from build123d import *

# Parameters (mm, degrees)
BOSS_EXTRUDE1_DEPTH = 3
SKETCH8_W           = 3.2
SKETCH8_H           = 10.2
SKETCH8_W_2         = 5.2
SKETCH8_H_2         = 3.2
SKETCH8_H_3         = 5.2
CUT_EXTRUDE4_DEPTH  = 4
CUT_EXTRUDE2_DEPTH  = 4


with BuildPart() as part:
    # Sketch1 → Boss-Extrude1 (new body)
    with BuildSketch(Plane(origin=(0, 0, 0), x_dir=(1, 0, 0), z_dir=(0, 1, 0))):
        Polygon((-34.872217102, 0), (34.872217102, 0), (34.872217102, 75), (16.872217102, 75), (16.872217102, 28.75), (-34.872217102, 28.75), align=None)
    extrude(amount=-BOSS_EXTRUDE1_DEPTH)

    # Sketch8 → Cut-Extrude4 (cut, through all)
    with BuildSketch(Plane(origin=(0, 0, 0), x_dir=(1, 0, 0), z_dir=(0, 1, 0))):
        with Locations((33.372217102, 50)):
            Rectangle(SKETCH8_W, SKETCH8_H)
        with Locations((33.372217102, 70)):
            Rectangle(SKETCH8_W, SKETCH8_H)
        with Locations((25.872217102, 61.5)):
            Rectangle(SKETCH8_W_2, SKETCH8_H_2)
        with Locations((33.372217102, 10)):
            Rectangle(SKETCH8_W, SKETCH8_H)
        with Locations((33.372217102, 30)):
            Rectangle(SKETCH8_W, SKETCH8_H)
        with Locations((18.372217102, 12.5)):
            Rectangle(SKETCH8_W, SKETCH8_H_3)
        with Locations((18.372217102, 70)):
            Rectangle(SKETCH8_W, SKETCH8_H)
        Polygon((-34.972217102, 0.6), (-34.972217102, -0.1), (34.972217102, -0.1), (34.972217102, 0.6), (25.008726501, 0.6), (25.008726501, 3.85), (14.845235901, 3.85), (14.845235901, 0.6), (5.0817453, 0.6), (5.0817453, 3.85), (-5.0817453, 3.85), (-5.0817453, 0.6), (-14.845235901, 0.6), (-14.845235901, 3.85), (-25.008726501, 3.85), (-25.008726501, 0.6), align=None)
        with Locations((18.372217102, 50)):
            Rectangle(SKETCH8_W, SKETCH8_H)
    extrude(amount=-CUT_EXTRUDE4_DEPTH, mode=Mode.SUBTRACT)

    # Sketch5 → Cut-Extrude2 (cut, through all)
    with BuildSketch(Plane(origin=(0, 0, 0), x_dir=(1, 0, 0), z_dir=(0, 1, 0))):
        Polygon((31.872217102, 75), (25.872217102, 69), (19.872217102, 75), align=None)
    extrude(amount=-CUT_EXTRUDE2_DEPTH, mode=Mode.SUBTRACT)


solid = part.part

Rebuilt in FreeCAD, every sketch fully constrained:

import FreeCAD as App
import Part
import Sketcher
from FreeCAD import Vector

doc = App.newDocument("Part")
body = doc.addObject("PartDesign::Body", "Body")

sketch1 = doc.addObject("Sketcher::SketchObject", "Sketch")
body.addObject(sketch1)
sketch1.AttachmentSupport = (doc.XZ_Plane, [""])
sketch1.MapMode = "FlatFace"
sketch1.addGeometry(Part.LineSegment(Vector(-35, 0, 0), Vector(35, 0, 0)), False)
sketch1.addGeometry(Part.LineSegment(Vector(35, 0, 0), Vector(35, -75, 0)), False)
sketch1.addGeometry(Part.LineSegment(Vector(35, -75, 0), Vector(17, -75, 0)), False)
sketch1.addGeometry(Part.LineSegment(Vector(17, -75, 0), Vector(17, -29, 0)), False)
sketch1.addGeometry(Part.LineSegment(Vector(17, -29, 0), Vector(-35, -29, 0)), False)
sketch1.addGeometry(Part.LineSegment(Vector(-35, -29, 0), Vector(-35, 0, 0)), False)
sketch1.addConstraint(Sketcher.Constraint("Coincident", 0, 2, 1, 1))
sketch1.addConstraint(Sketcher.Constraint("Coincident", 1, 2, 2, 1))
sketch1.addConstraint(Sketcher.Constraint("Coincident", 2, 2, 3, 1))
sketch1.addConstraint(Sketcher.Constraint("Coincident", 3, 2, 4, 1))
sketch1.addConstraint(Sketcher.Constraint("Coincident", 4, 2, 5, 1))
sketch1.addConstraint(Sketcher.Constraint("Coincident", 5, 2, 0, 1))
sketch1.addConstraint(Sketcher.Constraint("Horizontal", 0))
sketch1.addConstraint(Sketcher.Constraint("Vertical", 1))
sketch1.addConstraint(Sketcher.Constraint("Horizontal", 2))
sketch1.addConstraint(Sketcher.Constraint("Vertical", 3))
sketch1.addConstraint(Sketcher.Constraint("Horizontal", 4))
sketch1.addConstraint(Sketcher.Constraint("Vertical", 5))
sketch1.addConstraint(Sketcher.Constraint("Symmetric", 0, 2, 5, 2, -1, 1))
sketch1.addConstraint(Sketcher.Constraint("DistanceX", 2, 2, 2, 1, 18.0))
sketch1.addConstraint(Sketcher.Constraint("DistanceY", 1, 2, 1, 1, 75.0))
sketch1.addConstraint(Sketcher.Constraint("DistanceY", 3, 1, 3, 2, 46.25))
sketch1.addConstraint(Sketcher.Constraint("DistanceX", 0, 1, 0, 2, 69.744434))
pad1 = doc.addObject("PartDesign::Pad", "Pad")
body.addObject(pad1)
pad1.Profile = sketch1
pad1.Length = 3

sketch2 = doc.addObject("Sketcher::SketchObject", "Sketch001")
body.addObject(sketch2)
sketch2.AttachmentSupport = (doc.XZ_Plane, [""])
sketch2.MapMode = "FlatFace"
sketch2.addGeometry(Part.LineSegment(Vector(31.8, -55.1, 0), Vector(31.8, -44.9, 0)), False)
sketch2.addGeometry(Part.LineSegment(Vector(31.8, -44.9, 0), Vector(35, -44.9, 0)), False)
sketch2.addGeometry(Part.LineSegment(Vector(35, -44.9, 0), Vector(35, -55.1, 0)), False)
sketch2.addGeometry(Part.LineSegment(Vector(35, -55.1, 0), Vector(31.8, -55.1, 0)), False)
sketch2.addGeometry(Part.LineSegment(Vector(31.8, -75.1, 0), Vector(31.8, -64.9, 0)), False)
sketch2.addGeometry(Part.LineSegment(Vector(31.8, -64.9, 0), Vector(35, -64.9, 0)), False)
sketch2.addGeometry(Part.LineSegment(Vector(35, -64.9, 0), Vector(35, -75.1, 0)), False)
sketch2.addGeometry(Part.LineSegment(Vector(35, -75.1, 0), Vector(31.8, -75.1, 0)), False)
sketch2.addGeometry(Part.LineSegment(Vector(23.3, -63.1, 0), Vector(23.3, -59.9, 0)), False)
sketch2.addGeometry(Part.LineSegment(Vector(23.3, -59.9, 0), Vector(28.5, -59.9, 0)), False)
sketch2.addGeometry(Part.LineSegment(Vector(28.5, -59.9, 0), Vector(28.5, -63.1, 0)), False)
sketch2.addGeometry(Part.LineSegment(Vector(28.5, -63.1, 0), Vector(23.3, -63.1, 0)), False)
sketch2.addGeometry(Part.LineSegment(Vector(31.8, -15.1, 0), Vector(31.8, -4.9, 0)), False)
sketch2.addGeometry(Part.LineSegment(Vector(31.8, -4.9, 0), Vector(35, -4.9, 0)), False)
sketch2.addGeometry(Part.LineSegment(Vector(35, -4.9, 0), Vector(35, -15.1, 0)), False)
sketch2.addGeometry(Part.LineSegment(Vector(35, -15.1, 0), Vector(31.8, -15.1, 0)), False)
sketch2.addGeometry(Part.LineSegment(Vector(31.8, -35.1, 0), Vector(31.8, -24.9, 0)), False)
sketch2.addGeometry(Part.LineSegment(Vector(31.8, -24.9, 0), Vector(35, -24.9, 0)), False)
sketch2.addGeometry(Part.LineSegment(Vector(35, -24.9, 0), Vector(35, -35.1, 0)), False)
sketch2.addGeometry(Part.LineSegment(Vector(35, -35.1, 0), Vector(31.8, -35.1, 0)), False)
sketch2.addGeometry(Part.LineSegment(Vector(16.8, -15.1, 0), Vector(16.8, -9.9, 0)), False)
sketch2.addGeometry(Part.LineSegment(Vector(16.8, -9.9, 0), Vector(20, -9.9, 0)), False)
sketch2.addGeometry(Part.LineSegment(Vector(20, -9.9, 0), Vector(20, -15.1, 0)), False)
sketch2.addGeometry(Part.LineSegment(Vector(20, -15.1, 0), Vector(16.8, -15.1, 0)), False)
sketch2.addGeometry(Part.LineSegment(Vector(16.8, -75.1, 0), Vector(16.8, -64.9, 0)), False)
sketch2.addGeometry(Part.LineSegment(Vector(16.8, -64.9, 0), Vector(20, -64.9, 0)), False)
sketch2.addGeometry(Part.LineSegment(Vector(20, -64.9, 0), Vector(20, -75.1, 0)), False)
sketch2.addGeometry(Part.LineSegment(Vector(20, -75.1, 0), Vector(16.8, -75.1, 0)), False)
sketch2.addGeometry(Part.LineSegment(Vector(-35, -0.6, 0), Vector(-35, 0.1, 0)), False)
sketch2.addGeometry(Part.LineSegment(Vector(-35, 0.1, 0), Vector(35, 0.1, 0)), False)
sketch2.addGeometry(Part.LineSegment(Vector(35, 0.1, 0), Vector(35, -0.6, 0)), False)
sketch2.addGeometry(Part.LineSegment(Vector(35, -0.6, 0), Vector(25, -0.6, 0)), False)
sketch2.addGeometry(Part.LineSegment(Vector(25, -0.6, 0), Vector(25, -3.9, 0)), False)
sketch2.addGeometry(Part.LineSegment(Vector(25, -3.9, 0), Vector(14.8, -3.9, 0)), False)
sketch2.addGeometry(Part.LineSegment(Vector(14.8, -3.9, 0), Vector(14.8, -0.6, 0)), False)
sketch2.addGeometry(Part.LineSegment(Vector(14.8, -0.6, 0), Vector(5.1, -0.6, 0)), False)
sketch2.addGeometry(Part.LineSegment(Vector(5.1, -0.6, 0), Vector(5.1, -3.9, 0)), False)
sketch2.addGeometry(Part.LineSegment(Vector(5.1, -3.9, 0), Vector(-5.1, -3.9, 0)), False)
sketch2.addGeometry(Part.LineSegment(Vector(-5.1, -3.9, 0), Vector(-5.1, -0.6, 0)), False)
sketch2.addGeometry(Part.LineSegment(Vector(-5.1, -0.6, 0), Vector(-14.8, -0.6, 0)), False)
sketch2.addGeometry(Part.LineSegment(Vector(-14.8, -0.6, 0), Vector(-14.8, -3.9, 0)), False)
sketch2.addGeometry(Part.LineSegment(Vector(-14.8, -3.9, 0), Vector(-25, -3.9, 0)), False)
sketch2.addGeometry(Part.LineSegment(Vector(-25, -3.9, 0), Vector(-25, -0.6, 0)), False)
sketch2.addGeometry(Part.LineSegment(Vector(-25, -0.6, 0), Vector(-35, -0.6, 0)), False)
sketch2.addGeometry(Part.LineSegment(Vector(16.8, -55.1, 0), Vector(16.8, -44.9, 0)), False)
sketch2.addGeometry(Part.LineSegment(Vector(16.8, -44.9, 0), Vector(20, -44.9, 0)), False)
sketch2.addGeometry(Part.LineSegment(Vector(20, -44.9, 0), Vector(20, -55.1, 0)), False)
sketch2.addGeometry(Part.LineSegment(Vector(20, -55.1, 0), Vector(16.8, -55.1, 0)), False)
sketch2.addConstraint(Sketcher.Constraint("Coincident", 0, 2, 1, 1))
sketch2.addConstraint(Sketcher.Constraint("Coincident", 1, 2, 2, 1))
sketch2.addConstraint(Sketcher.Constraint("Coincident", 2, 2, 3, 1))
sketch2.addConstraint(Sketcher.Constraint("Coincident", 3, 2, 0, 1))
sketch2.addConstraint(Sketcher.Constraint("Coincident", 4, 2, 5, 1))
sketch2.addConstraint(Sketcher.Constraint("Coincident", 5, 2, 6, 1))
sketch2.addConstraint(Sketcher.Constraint("Coincident", 6, 2, 7, 1))
sketch2.addConstraint(Sketcher.Constraint("Coincident", 7, 2, 4, 1))
sketch2.addConstraint(Sketcher.Constraint("Coincident", 8, 2, 9, 1))
sketch2.addConstraint(Sketcher.Constraint("Coincident", 9, 2, 10, 1))
sketch2.addConstraint(Sketcher.Constraint("Coincident", 10, 2, 11, 1))
sketch2.addConstraint(Sketcher.Constraint("Coincident", 11, 2, 8, 1))
sketch2.addConstraint(Sketcher.Constraint("Coincident", 12, 2, 13, 1))
sketch2.addConstraint(Sketcher.Constraint("Coincident", 13, 2, 14, 1))
sketch2.addConstraint(Sketcher.Constraint("Coincident", 14, 2, 15, 1))
sketch2.addConstraint(Sketcher.Constraint("Coincident", 15, 2, 12, 1))
sketch2.addConstraint(Sketcher.Constraint("Coincident", 16, 2, 17, 1))
sketch2.addConstraint(Sketcher.Constraint("Coincident", 17, 2, 18, 1))
sketch2.addConstraint(Sketcher.Constraint("Coincident", 18, 2, 19, 1))
sketch2.addConstraint(Sketcher.Constraint("Coincident", 19, 2, 16, 1))
sketch2.addConstraint(Sketcher.Constraint("Coincident", 20, 2, 21, 1))
sketch2.addConstraint(Sketcher.Constraint("Coincident", 21, 2, 22, 1))
sketch2.addConstraint(Sketcher.Constraint("Coincident", 22, 2, 23, 1))
sketch2.addConstraint(Sketcher.Constraint("Coincident", 23, 2, 20, 1))
sketch2.addConstraint(Sketcher.Constraint("Coincident", 24, 2, 25, 1))
sketch2.addConstraint(Sketcher.Constraint("Coincident", 25, 2, 26, 1))
sketch2.addConstraint(Sketcher.Constraint("Coincident", 26, 2, 27, 1))
sketch2.addConstraint(Sketcher.Constraint("Coincident", 27, 2, 24, 1))
sketch2.addConstraint(Sketcher.Constraint("Coincident", 28, 2, 29, 1))
sketch2.addConstraint(Sketcher.Constraint("Coincident", 29, 2, 30, 1))
sketch2.addConstraint(Sketcher.Constraint("Coincident", 30, 2, 31, 1))
sketch2.addConstraint(Sketcher.Constraint("Coincident", 31, 2, 32, 1))
sketch2.addConstraint(Sketcher.Constraint("Coincident", 32, 2, 33, 1))
sketch2.addConstraint(Sketcher.Constraint("Coincident", 33, 2, 34, 1))
sketch2.addConstraint(Sketcher.Constraint("Coincident", 34, 2, 35, 1))
sketch2.addConstraint(Sketcher.Constraint("Coincident", 35, 2, 36, 1))
sketch2.addConstraint(Sketcher.Constraint("Coincident", 36, 2, 37, 1))
sketch2.addConstraint(Sketcher.Constraint("Coincident", 37, 2, 38, 1))
sketch2.addConstraint(Sketcher.Constraint("Coincident", 38, 2, 39, 1))
sketch2.addConstraint(Sketcher.Constraint("Coincident", 39, 2, 40, 1))
sketch2.addConstraint(Sketcher.Constraint("Coincident", 40, 2, 41, 1))
sketch2.addConstraint(Sketcher.Constraint("Coincident", 41, 2, 42, 1))
sketch2.addConstraint(Sketcher.Constraint("Coincident", 42, 2, 43, 1))
sketch2.addConstraint(Sketcher.Constraint("Coincident", 43, 2, 28, 1))
sketch2.addConstraint(Sketcher.Constraint("Coincident", 44, 2, 45, 1))
sketch2.addConstraint(Sketcher.Constraint("Coincident", 45, 2, 46, 1))
sketch2.addConstraint(Sketcher.Constraint("Coincident", 46, 2, 47, 1))
sketch2.addConstraint(Sketcher.Constraint("Coincident", 47, 2, 44, 1))
sketch2.addConstraint(Sketcher.Constraint("Vertical", 0))
sketch2.addConstraint(Sketcher.Constraint("Horizontal", 1))
sketch2.addConstraint(Sketcher.Constraint("Vertical", 2))
sketch2.addConstraint(Sketcher.Constraint("Horizontal", 3))
sketch2.addConstraint(Sketcher.Constraint("Vertical", 4))
sketch2.addConstraint(Sketcher.Constraint("Horizontal", 5))
sketch2.addConstraint(Sketcher.Constraint("Vertical", 6))
sketch2.addConstraint(Sketcher.Constraint("Horizontal", 7))
sketch2.addConstraint(Sketcher.Constraint("Vertical", 8))
sketch2.addConstraint(Sketcher.Constraint("Horizontal", 9))
sketch2.addConstraint(Sketcher.Constraint("Vertical", 10))
sketch2.addConstraint(Sketcher.Constraint("Horizontal", 11))
sketch2.addConstraint(Sketcher.Constraint("Vertical", 12))
sketch2.addConstraint(Sketcher.Constraint("Horizontal", 13))
sketch2.addConstraint(Sketcher.Constraint("Vertical", 14))
sketch2.addConstraint(Sketcher.Constraint("Horizontal", 15))
sketch2.addConstraint(Sketcher.Constraint("Vertical", 16))
sketch2.addConstraint(Sketcher.Constraint("Horizontal", 17))
sketch2.addConstraint(Sketcher.Constraint("Vertical", 18))
sketch2.addConstraint(Sketcher.Constraint("Horizontal", 19))
sketch2.addConstraint(Sketcher.Constraint("Vertical", 20))
sketch2.addConstraint(Sketcher.Constraint("Horizontal", 21))
sketch2.addConstraint(Sketcher.Constraint("Vertical", 22))
sketch2.addConstraint(Sketcher.Constraint("Horizontal", 23))
sketch2.addConstraint(Sketcher.Constraint("Vertical", 24))
sketch2.addConstraint(Sketcher.Constraint("Horizontal", 25))
sketch2.addConstraint(Sketcher.Constraint("Vertical", 26))
sketch2.addConstraint(Sketcher.Constraint("Horizontal", 27))
sketch2.addConstraint(Sketcher.Constraint("Vertical", 28))
sketch2.addConstraint(Sketcher.Constraint("Horizontal", 29))
sketch2.addConstraint(Sketcher.Constraint("Vertical", 30))
sketch2.addConstraint(Sketcher.Constraint("Horizontal", 31))
sketch2.addConstraint(Sketcher.Constraint("Vertical", 32))
sketch2.addConstraint(Sketcher.Constraint("Horizontal", 33))
sketch2.addConstraint(Sketcher.Constraint("Vertical", 34))
sketch2.addConstraint(Sketcher.Constraint("Horizontal", 35))
sketch2.addConstraint(Sketcher.Constraint("Vertical", 36))
sketch2.addConstraint(Sketcher.Constraint("Horizontal", 37))
sketch2.addConstraint(Sketcher.Constraint("Vertical", 38))
sketch2.addConstraint(Sketcher.Constraint("Horizontal", 39))
sketch2.addConstraint(Sketcher.Constraint("Vertical", 40))
sketch2.addConstraint(Sketcher.Constraint("Horizontal", 41))
sketch2.addConstraint(Sketcher.Constraint("Vertical", 42))
sketch2.addConstraint(Sketcher.Constraint("Horizontal", 43))
sketch2.addConstraint(Sketcher.Constraint("Vertical", 44))
sketch2.addConstraint(Sketcher.Constraint("Horizontal", 45))
sketch2.addConstraint(Sketcher.Constraint("Vertical", 46))
sketch2.addConstraint(Sketcher.Constraint("Horizontal", 47))
sketch2.addConstraint(Sketcher.Constraint("Symmetric", 35, 2, 38, 2, -2))
sketch2.addConstraint(Sketcher.Constraint("Symmetric", 33, 2, 40, 2, -2))
sketch2.addConstraint(Sketcher.Constraint("Symmetric", 31, 2, 42, 2, -2))
sketch2.addConstraint(Sketcher.Constraint("Horizontal", 15, 2, 22, 2))
sketch2.addConstraint(Sketcher.Constraint("Horizontal", 5, 2, 24, 2))
sketch2.addConstraint(Sketcher.Constraint("Horizontal", 7, 2, 26, 2))
sketch2.addConstraint(Sketcher.Constraint("Horizontal", 31, 2, 34, 2))
sketch2.addConstraint(Sketcher.Constraint("Horizontal", 33, 2, 36, 2))
sketch2.addConstraint(Sketcher.Constraint("Horizontal", 1, 2, 44, 2))
sketch2.addConstraint(Sketcher.Constraint("Horizontal", 3, 2, 46, 2))
sketch2.addConstraint(Sketcher.Constraint("Vertical", 3, 2, 4, 2))
sketch2.addConstraint(Sketcher.Constraint("Vertical", 2, 2, 5, 2))
sketch2.addConstraint(Sketcher.Constraint("Vertical", 7, 2, 12, 2))
sketch2.addConstraint(Sketcher.Constraint("Vertical", 6, 2, 13, 2))
sketch2.addConstraint(Sketcher.Constraint("Vertical", 15, 2, 16, 2))
sketch2.addConstraint(Sketcher.Constraint("Vertical", 14, 2, 17, 2))
sketch2.addConstraint(Sketcher.Constraint("Vertical", 23, 2, 24, 2))
sketch2.addConstraint(Sketcher.Constraint("Vertical", 22, 2, 25, 2))
sketch2.addConstraint(Sketcher.Constraint("Vertical", 18, 2, 29, 2))
sketch2.addConstraint(Sketcher.Constraint("Vertical", 27, 2, 44, 2))
sketch2.addConstraint(Sketcher.Constraint("Vertical", 26, 2, 45, 2))
sketch2.addConstraint(Sketcher.Constraint("Equal", 19, 21))
sketch2.addConstraint(Sketcher.Constraint("Equal", 33, 37))
sketch2.addConstraint(Sketcher.Constraint("Equal", 31, 43))
sketch2.addConstraint(Sketcher.Constraint("Equal", 2, 4))
sketch2.addConstraint(Sketcher.Constraint("Equal", 47, 8))
sketch2.addConstraint(Sketcher.Constraint("Equal", 6, 12))
sketch2.addConstraint(Sketcher.Constraint("Equal", 14, 16))
sketch2.addConstraint(Sketcher.Constraint("Equal", 11, 20))
sketch2.addConstraint(Sketcher.Constraint("DistanceX", 1, 1, 1, 2, 3.2))
sketch2.addConstraint(Sketcher.Constraint("DistanceX", 9, 1, 9, 2, 5.2))
sketch2.addConstraint(Sketcher.Constraint("DistanceY", 0, 1, 0, 2, 10.2))
sketch2.addConstraint(Sketcher.Constraint("DistanceY", 28, 1, 28, 2, 0.7))
sketch2.addConstraint(Sketcher.Constraint("DistanceY", 4, 2, 0, 2, 20.0))
sketch2.addConstraint(Sketcher.Constraint("DistanceY", 4, 2, 8, 2, 5.0))
sketch2.addConstraint(Sketcher.Constraint("DistanceY", 0, 2, 12, 2, 40.0))
sketch2.addConstraint(Sketcher.Constraint("DistanceY", 0, 2, 16, 2, 20.0))
sketch2.addConstraint(Sketcher.Constraint("DistanceX", 20, 2, 12, 2, 15.0))
sketch2.addConstraint(Sketcher.Constraint("DistanceY", 20, 2, 28, 2, 10.0))
sketch2.addConstraint(Sketcher.Constraint("DistanceY", 32, 2, 32, 1, 3.25))
sketch2.addConstraint(Sketcher.Constraint("DistanceY", 0, 2, -1, 1, 44.9))
sketch2.addConstraint(Sketcher.Constraint("DistanceX", 8, 2, 3, 2, 8.5))
sketch2.addConstraint(Sketcher.Constraint("DistanceX", 31, 2, 31, 1, 9.963491))
sketch2.addConstraint(Sketcher.Constraint("DistanceX", 33, 2, 33, 1, 10.163491))
sketch2.addConstraint(Sketcher.Constraint("DistanceX", 35, 2, 35, 1, 9.763491))
pocket1 = doc.addObject("PartDesign::Pocket", "Pocket")
body.addObject(pocket1)
pocket1.Profile = sketch2
pocket1.Type = "ThroughAll"
pocket1.Reversed = True

sketch3 = doc.addObject("Sketcher::SketchObject", "Sketch002")
body.addObject(sketch3)
sketch3.AttachmentSupport = (doc.XZ_Plane, [""])
sketch3.MapMode = "FlatFace"
sketch3.addGeometry(Part.LineSegment(Vector(26, -69, 0), Vector(32, -75, 0)), False)
sketch3.addGeometry(Part.LineSegment(Vector(32, -75, 0), Vector(20, -75, 0)), False)
sketch3.addGeometry(Part.LineSegment(Vector(20, -75, 0), Vector(26, -69, 0)), False)
sketch3.addConstraint(Sketcher.Constraint("Coincident", 0, 2, 1, 1))
sketch3.addConstraint(Sketcher.Constraint("Coincident", 1, 2, 2, 1))
sketch3.addConstraint(Sketcher.Constraint("Coincident", 2, 2, 0, 1))
sketch3.addConstraint(Sketcher.Constraint("Horizontal", 1))
sketch3.addConstraint(Sketcher.Constraint("Perpendicular", 0, 2))
sketch3.addConstraint(Sketcher.Constraint("Equal", 0, 2))
sketch3.addConstraint(Sketcher.Constraint("DistanceX", 1, 2, 1, 1, 12.0))
sketch3.addConstraint(Sketcher.Constraint("DistanceY", 0, 2, -1, 1, 75.0))
sketch3.addConstraint(Sketcher.Constraint("DistanceX", -1, 1, 0, 2, 31.872217))
pocket2 = doc.addObject("PartDesign::Pocket", "Pocket001")
body.addObject(pocket2)
pocket2.Profile = sketch3
pocket2.Type = "ThroughAll"
pocket2.Reversed = True

doc.recompute()
